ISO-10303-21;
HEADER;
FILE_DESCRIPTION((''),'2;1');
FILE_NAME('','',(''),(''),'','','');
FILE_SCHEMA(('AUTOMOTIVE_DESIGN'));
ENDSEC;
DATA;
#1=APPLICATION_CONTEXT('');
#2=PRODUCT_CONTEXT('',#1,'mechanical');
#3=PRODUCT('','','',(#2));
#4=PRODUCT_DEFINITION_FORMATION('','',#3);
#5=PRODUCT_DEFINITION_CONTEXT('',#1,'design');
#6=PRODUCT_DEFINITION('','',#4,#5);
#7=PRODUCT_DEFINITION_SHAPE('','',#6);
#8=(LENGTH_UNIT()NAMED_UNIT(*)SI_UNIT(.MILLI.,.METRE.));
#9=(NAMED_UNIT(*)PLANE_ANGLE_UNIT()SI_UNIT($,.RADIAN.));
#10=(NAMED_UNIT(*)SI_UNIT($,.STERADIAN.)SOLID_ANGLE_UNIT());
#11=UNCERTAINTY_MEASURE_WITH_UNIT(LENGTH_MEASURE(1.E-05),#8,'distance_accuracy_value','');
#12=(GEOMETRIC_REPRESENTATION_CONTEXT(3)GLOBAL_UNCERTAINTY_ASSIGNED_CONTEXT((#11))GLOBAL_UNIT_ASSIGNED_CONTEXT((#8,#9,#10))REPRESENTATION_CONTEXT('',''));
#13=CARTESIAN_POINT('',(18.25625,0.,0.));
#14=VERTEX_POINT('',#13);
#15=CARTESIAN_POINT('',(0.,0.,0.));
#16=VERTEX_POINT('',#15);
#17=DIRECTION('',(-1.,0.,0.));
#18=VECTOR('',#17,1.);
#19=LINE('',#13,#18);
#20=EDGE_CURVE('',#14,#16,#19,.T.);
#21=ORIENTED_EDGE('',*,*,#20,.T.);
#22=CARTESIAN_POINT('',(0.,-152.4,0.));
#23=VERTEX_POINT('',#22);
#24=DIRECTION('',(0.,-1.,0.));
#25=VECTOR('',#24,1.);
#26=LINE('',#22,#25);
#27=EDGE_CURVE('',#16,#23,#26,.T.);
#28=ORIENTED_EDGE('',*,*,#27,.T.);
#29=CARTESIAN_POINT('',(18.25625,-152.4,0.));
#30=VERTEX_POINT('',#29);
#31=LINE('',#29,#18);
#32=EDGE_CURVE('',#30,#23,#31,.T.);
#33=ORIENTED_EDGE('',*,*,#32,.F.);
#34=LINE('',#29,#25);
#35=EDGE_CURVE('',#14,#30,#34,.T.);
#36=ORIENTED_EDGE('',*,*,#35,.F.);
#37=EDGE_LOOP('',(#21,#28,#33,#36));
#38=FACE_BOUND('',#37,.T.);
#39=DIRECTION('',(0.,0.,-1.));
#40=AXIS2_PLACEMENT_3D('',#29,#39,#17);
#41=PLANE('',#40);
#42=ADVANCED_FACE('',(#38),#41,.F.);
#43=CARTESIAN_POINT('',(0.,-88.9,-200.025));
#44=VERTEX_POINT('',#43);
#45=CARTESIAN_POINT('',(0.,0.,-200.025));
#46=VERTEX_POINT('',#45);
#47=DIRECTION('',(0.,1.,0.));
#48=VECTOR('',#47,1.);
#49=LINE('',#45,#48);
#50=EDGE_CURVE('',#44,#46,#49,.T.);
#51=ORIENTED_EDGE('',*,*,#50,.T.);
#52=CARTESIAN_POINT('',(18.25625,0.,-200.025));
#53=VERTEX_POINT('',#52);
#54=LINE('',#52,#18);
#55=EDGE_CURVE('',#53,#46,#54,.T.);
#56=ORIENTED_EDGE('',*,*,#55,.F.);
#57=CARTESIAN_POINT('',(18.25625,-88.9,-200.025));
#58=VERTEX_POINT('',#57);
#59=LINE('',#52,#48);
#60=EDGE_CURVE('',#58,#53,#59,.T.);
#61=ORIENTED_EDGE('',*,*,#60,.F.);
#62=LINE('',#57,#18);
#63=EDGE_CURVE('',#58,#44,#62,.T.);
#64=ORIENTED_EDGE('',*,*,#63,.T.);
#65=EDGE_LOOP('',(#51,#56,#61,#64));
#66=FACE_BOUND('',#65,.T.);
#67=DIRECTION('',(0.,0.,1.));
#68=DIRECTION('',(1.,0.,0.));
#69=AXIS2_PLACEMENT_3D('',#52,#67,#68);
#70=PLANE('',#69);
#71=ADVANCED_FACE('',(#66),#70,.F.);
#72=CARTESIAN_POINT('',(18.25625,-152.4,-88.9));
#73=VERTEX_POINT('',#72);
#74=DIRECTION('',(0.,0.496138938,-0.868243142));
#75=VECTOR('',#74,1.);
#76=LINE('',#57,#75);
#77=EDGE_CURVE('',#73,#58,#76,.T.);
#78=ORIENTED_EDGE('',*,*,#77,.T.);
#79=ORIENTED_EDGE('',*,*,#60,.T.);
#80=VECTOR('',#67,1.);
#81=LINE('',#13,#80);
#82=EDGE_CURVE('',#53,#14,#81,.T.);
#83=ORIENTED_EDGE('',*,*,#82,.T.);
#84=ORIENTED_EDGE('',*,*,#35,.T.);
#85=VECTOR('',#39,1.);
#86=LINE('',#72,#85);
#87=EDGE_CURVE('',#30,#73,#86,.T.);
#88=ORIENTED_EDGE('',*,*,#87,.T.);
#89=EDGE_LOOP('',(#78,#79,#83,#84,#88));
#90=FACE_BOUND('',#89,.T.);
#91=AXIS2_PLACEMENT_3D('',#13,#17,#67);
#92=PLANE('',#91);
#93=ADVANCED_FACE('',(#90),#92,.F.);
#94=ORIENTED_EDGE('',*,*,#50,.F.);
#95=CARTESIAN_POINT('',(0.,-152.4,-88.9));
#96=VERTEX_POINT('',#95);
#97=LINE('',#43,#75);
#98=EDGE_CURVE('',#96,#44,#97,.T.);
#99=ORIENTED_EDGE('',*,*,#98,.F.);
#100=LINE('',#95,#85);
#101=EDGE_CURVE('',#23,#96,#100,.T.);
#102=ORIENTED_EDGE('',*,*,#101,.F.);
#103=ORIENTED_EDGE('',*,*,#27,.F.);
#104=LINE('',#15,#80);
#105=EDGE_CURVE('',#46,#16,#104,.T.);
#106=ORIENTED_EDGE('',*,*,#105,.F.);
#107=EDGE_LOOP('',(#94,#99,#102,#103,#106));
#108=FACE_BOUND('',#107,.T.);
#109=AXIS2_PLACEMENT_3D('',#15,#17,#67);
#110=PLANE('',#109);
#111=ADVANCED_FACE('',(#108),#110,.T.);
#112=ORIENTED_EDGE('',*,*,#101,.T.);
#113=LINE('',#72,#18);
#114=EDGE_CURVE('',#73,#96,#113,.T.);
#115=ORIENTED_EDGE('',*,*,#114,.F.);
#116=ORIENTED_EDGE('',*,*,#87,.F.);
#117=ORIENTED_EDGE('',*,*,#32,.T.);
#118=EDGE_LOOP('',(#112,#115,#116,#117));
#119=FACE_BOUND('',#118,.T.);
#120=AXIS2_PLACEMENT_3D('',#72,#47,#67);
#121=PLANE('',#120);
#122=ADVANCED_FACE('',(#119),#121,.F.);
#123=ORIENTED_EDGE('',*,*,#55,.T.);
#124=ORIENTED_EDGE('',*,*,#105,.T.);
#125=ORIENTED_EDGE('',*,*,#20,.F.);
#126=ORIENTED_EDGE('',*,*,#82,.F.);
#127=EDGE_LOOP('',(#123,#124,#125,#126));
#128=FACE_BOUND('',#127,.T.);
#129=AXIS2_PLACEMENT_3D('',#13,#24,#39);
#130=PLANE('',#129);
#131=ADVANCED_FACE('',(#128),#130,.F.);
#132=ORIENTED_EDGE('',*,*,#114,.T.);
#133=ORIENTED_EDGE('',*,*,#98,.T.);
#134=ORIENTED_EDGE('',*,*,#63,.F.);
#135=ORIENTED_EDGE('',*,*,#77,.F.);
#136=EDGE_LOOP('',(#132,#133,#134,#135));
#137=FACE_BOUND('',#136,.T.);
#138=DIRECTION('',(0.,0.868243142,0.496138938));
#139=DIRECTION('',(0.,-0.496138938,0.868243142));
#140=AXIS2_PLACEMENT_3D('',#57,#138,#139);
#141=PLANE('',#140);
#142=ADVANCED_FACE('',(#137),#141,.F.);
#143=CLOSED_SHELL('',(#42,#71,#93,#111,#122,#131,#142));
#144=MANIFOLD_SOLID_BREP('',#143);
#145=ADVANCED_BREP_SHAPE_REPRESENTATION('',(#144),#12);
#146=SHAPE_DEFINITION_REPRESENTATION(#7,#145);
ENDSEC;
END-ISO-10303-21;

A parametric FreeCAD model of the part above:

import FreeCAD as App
import Part
import Sketcher
from FreeCAD import Vector
Q = App.Units.Quantity


def add_polygon(sketch, points):
    """Adds a closed chain of lines whose ends are joined by coincident constraints."""
    first, n = sketch.GeometryCount, len(points)
    for a, b in zip(points, points[1:] + points[:1]):
        sketch.addGeometry(Part.LineSegment(App.Vector(*a, 0), App.Vector(*b, 0)), False)
    for i in range(n):
        sketch.addConstraint(Sketcher.Constraint("Coincident", first + i, 2, first + (i + 1) % n, 1))

doc = App.newDocument("Part")
body = doc.addObject("PartDesign::Body", "Body")

sketch1 = body.newObject("Sketcher::SketchObject", "Sketch")
sketch1.AttachmentSupport = (doc.getObject("YZ_Plane"), [""])
sketch1.MapMode = "FlatFace"
add_polygon(sketch1, [(0, -200.025), (0, 0), (-152.4, 0), (-152.4, -88.9), (-88.9, -200.025)])
sketch1.addConstraint(Sketcher.Constraint("Vertical", 0))
sketch1.addConstraint(Sketcher.Constraint("Horizontal", 1))
sketch1.addConstraint(Sketcher.Constraint("Vertical", 2))
sketch1.addConstraint(Sketcher.Constraint("Horizontal", 4))
sketch1.addConstraint(Sketcher.Constraint("Coincident", 0, 2, -1, 1))
sketch1.addConstraint(Sketcher.Constraint("Equal", 4, 2))
sketch1.addConstraint(Sketcher.Constraint("DistanceX", 1, 2, 1, 1, Q("6 in")))
sketch1.addConstraint(Sketcher.Constraint("DistanceX", 4, 1, 4, 2, Q("3.5 in")))
sketch1.addConstraint(Sketcher.Constraint("DistanceY", 0, 1, 0, 2, Q("7.875 in")))
pad1 = body.newObject("PartDesign::Pad", "Pad")
pad1.Profile = sketch1
pad1.Length = Q("0.71875 in")

doc.recompute()
